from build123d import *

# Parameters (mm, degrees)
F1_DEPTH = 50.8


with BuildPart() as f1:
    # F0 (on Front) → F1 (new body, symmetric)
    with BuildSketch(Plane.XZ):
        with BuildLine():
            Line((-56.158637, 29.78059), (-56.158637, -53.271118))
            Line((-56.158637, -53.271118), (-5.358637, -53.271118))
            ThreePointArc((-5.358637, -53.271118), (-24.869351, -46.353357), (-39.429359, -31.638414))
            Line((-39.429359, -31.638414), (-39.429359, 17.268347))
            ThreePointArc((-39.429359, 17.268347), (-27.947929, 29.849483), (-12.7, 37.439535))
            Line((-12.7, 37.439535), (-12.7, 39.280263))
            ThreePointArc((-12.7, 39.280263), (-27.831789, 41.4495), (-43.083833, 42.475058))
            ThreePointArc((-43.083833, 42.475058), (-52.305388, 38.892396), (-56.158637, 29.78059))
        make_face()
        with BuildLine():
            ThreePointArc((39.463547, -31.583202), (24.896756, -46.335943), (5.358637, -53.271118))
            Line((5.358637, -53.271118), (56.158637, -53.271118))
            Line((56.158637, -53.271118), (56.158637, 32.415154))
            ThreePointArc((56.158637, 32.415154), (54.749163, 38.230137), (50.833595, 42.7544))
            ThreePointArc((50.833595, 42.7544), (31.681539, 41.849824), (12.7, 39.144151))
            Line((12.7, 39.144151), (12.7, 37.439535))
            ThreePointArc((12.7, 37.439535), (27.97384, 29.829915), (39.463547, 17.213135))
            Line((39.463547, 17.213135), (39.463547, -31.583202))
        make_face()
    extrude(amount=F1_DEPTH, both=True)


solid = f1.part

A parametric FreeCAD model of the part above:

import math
import FreeCAD as App
import Part
import Sketcher
from FreeCAD import Vector
Q = App.Units.Quantity

doc = App.newDocument("Part")
body = doc.addObject("PartDesign::Body", "Body")
body.AllowCompound = True

sketch1 = doc.addObject("Sketcher::SketchObject", "Sketch")
body.addObject(sketch1)
sketch1.AttachmentSupport = (doc.XZ_Plane, [""])
sketch1.MapMode = "FlatFace"
sketch1.addGeometry([
    Part.LineSegment(Vector(-56.2, 29.8, 0), Vector(-56.2, -53.3, 0)),
    Part.LineSegment(Vector(-56.2, -53.3, 0), Vector(-5.4, -53.3, 0)),
    Part.ArcOfCircle(Part.Circle(Vector(0, -7.2, 0), Vector(0, 0, 1), 46.4), math.radians(-148), math.radians(-97)),
    Part.LineSegment(Vector(-39.4, -31.6, 0), Vector(-39.4, 17.3, 0)),
    Part.ArcOfCircle(Part.Circle(Vector(0, -7.2, 0), Vector(0, 0, 1), 46.4), math.radians(106), math.radians(148)),
    Part.LineSegment(Vector(-12.7, 37.4, 0), Vector(-12.7, 39.3, 0)),
    Part.ArcOfCircle(Part.Circle(Vector(-49.1, -160.6, 0), Vector(0, 0, 1), 203.2), math.radians(79.69), math.radians(88.31)),
    Part.ArcOfCircle(Part.Circle(Vector(-43.5, 29.8, 0), Vector(0, 0, 1), 12.7), math.radians(88), math.radians(180)),
    Part.ArcOfCircle(Part.Circle(Vector(0, -7.2, 0), Vector(0, 0, 1), 46.4), math.radians(-83), math.radians(-32)),
    Part.LineSegment(Vector(5.4, -53.3, 0), Vector(56.2, -53.3, 0)),
    Part.LineSegment(Vector(56.2, -53.3, 0), Vector(56.2, 32.4, 0)),
    Part.ArcOfCircle(Part.Circle(Vector(43.5, 32.4, 0), Vector(0, 0, 1), 12.7), math.radians(0), math.radians(54)),
    Part.ArcOfCircle(Part.Circle(Vector(50.8, -160.4, 0), Vector(0, 0, 1), 203.2), math.radians(90), math.radians(100.82)),
    Part.LineSegment(Vector(12.7, 39.1, 0), Vector(12.7, 37.4, 0)),
    Part.ArcOfCircle(Part.Circle(Vector(0, -7.2, 0), Vector(0, 0, 1), 46.4), math.radians(32), math.radians(74)),
    Part.LineSegment(Vector(39.5, 17.2, 0), Vector(39.5, -31.6, 0)),
], False)
sketch1.addConstraint([
    Sketcher.Constraint("Coincident", 0, 2, 1, 1),
    Sketcher.Constraint("Coincident", 1, 2, 2, 2),
    Sketcher.Constraint("Coincident", 2, 1, 3, 1),
    Sketcher.Constraint("Coincident", 3, 2, 4, 2),
    Sketcher.Constraint("Coincident", 4, 1, 5, 1),
    Sketcher.Constraint("Coincident", 5, 2, 6, 1),
    Sketcher.Constraint("Tangent", 6, 2, 7, 1),
    Sketcher.Constraint("Tangent", 7, 2, 0, 1),
    Sketcher.Constraint("Coincident", 8, 1, 9, 1),
    Sketcher.Constraint("Coincident", 9, 2, 10, 1),
    Sketcher.Constraint("Tangent", 10, 2, 11, 1),
    Sketcher.Constraint("Coincident", 11, 2, 12, 1),
    Sketcher.Constraint("Coincident", 12, 2, 13, 1),
    Sketcher.Constraint("Coincident", 13, 2, 14, 2),
    Sketcher.Constraint("Coincident", 14, 1, 15, 1),
    Sketcher.Constraint("Coincident", 15, 2, 8, 2),
    Sketcher.Constraint("Vertical", 0),
    Sketcher.Constraint("Horizontal", 1),
    Sketcher.Constraint("Vertical", 3),
    Sketcher.Constraint("Vertical", 5),
    Sketcher.Constraint("Horizontal", 9),
    Sketcher.Constraint("Vertical", 10),
    Sketcher.Constraint("Vertical", 13),
    Sketcher.Constraint("Vertical", 15),
    Sketcher.Constraint("Coincident", 4, 3, 2, 3),
    Sketcher.Constraint("Coincident", 8, 3, 2, 3),
    Sketcher.Constraint("Coincident", 14, 3, 2, 3),
    Sketcher.Constraint("Equal", 2, 4),
    Sketcher.Constraint("Equal", 4, 8),
    Sketcher.Constraint("Equal", 8, 14),
    Sketcher.Constraint("Symmetric", 1, 2, 8, 1, -2),
    Sketcher.Constraint("Horizontal", 4, 1, 13, 2),
    Sketcher.Constraint("Equal", 1, 9),
    Sketcher.Constraint("Radius", 7, Q("0.4999999 in")),
    Sketcher.Constraint("Radius", 11, Q("0.5 in")),
    Sketcher.Constraint("DistanceX", 1, 1, 1, 2, Q("2 in")),
    Sketcher.Constraint("DistanceX", 5, 2, 12, 2, Q("1 in")),
    Sketcher.Constraint("Radius", 6, Q("203.199911 mm")),
    Sketcher.Constraint("Radius", 2, Q("46.396574 mm")),
    Sketcher.Constraint("Radius", 12, Q("203.200036 mm")),
    Sketcher.Constraint("DistanceY", 0, 2, 0, 1, Q("83.051708 mm")),
    Sketcher.Constraint("DistanceY", 3, 1, 3, 2, Q("48.906761 mm")),
    Sketcher.Constraint("DistanceX", -1, 1, 12, 3, Q("50.833601 mm")),
    Sketcher.Constraint("DistanceY", -1, 1, 11, 2, Q("42.7544 mm")),
    Sketcher.Constraint("DistanceY", 15, 2, -1, 1, Q("31.583202 mm")),
    Sketcher.Constraint("DistanceY", 12, 3, 2, 3, Q("153.260601 mm")),
    Sketcher.Constraint("DistanceY", 5, 1, 5, 2, Q("1.840728 mm")),
    Sketcher.Constraint("DistanceY", 10, 1, 10, 2, Q("85.686272 mm")),
    Sketcher.Constraint("DistanceX", 7, 3, -1, 1, Q("43.458638 mm")),
])
pad1 = doc.addObject("PartDesign::Pad", "Pad")
body.addObject(pad1)
pad1.Profile = sketch1
pad1.Length = Q("4 in")
pad1.Midplane = True

doc.recompute()
